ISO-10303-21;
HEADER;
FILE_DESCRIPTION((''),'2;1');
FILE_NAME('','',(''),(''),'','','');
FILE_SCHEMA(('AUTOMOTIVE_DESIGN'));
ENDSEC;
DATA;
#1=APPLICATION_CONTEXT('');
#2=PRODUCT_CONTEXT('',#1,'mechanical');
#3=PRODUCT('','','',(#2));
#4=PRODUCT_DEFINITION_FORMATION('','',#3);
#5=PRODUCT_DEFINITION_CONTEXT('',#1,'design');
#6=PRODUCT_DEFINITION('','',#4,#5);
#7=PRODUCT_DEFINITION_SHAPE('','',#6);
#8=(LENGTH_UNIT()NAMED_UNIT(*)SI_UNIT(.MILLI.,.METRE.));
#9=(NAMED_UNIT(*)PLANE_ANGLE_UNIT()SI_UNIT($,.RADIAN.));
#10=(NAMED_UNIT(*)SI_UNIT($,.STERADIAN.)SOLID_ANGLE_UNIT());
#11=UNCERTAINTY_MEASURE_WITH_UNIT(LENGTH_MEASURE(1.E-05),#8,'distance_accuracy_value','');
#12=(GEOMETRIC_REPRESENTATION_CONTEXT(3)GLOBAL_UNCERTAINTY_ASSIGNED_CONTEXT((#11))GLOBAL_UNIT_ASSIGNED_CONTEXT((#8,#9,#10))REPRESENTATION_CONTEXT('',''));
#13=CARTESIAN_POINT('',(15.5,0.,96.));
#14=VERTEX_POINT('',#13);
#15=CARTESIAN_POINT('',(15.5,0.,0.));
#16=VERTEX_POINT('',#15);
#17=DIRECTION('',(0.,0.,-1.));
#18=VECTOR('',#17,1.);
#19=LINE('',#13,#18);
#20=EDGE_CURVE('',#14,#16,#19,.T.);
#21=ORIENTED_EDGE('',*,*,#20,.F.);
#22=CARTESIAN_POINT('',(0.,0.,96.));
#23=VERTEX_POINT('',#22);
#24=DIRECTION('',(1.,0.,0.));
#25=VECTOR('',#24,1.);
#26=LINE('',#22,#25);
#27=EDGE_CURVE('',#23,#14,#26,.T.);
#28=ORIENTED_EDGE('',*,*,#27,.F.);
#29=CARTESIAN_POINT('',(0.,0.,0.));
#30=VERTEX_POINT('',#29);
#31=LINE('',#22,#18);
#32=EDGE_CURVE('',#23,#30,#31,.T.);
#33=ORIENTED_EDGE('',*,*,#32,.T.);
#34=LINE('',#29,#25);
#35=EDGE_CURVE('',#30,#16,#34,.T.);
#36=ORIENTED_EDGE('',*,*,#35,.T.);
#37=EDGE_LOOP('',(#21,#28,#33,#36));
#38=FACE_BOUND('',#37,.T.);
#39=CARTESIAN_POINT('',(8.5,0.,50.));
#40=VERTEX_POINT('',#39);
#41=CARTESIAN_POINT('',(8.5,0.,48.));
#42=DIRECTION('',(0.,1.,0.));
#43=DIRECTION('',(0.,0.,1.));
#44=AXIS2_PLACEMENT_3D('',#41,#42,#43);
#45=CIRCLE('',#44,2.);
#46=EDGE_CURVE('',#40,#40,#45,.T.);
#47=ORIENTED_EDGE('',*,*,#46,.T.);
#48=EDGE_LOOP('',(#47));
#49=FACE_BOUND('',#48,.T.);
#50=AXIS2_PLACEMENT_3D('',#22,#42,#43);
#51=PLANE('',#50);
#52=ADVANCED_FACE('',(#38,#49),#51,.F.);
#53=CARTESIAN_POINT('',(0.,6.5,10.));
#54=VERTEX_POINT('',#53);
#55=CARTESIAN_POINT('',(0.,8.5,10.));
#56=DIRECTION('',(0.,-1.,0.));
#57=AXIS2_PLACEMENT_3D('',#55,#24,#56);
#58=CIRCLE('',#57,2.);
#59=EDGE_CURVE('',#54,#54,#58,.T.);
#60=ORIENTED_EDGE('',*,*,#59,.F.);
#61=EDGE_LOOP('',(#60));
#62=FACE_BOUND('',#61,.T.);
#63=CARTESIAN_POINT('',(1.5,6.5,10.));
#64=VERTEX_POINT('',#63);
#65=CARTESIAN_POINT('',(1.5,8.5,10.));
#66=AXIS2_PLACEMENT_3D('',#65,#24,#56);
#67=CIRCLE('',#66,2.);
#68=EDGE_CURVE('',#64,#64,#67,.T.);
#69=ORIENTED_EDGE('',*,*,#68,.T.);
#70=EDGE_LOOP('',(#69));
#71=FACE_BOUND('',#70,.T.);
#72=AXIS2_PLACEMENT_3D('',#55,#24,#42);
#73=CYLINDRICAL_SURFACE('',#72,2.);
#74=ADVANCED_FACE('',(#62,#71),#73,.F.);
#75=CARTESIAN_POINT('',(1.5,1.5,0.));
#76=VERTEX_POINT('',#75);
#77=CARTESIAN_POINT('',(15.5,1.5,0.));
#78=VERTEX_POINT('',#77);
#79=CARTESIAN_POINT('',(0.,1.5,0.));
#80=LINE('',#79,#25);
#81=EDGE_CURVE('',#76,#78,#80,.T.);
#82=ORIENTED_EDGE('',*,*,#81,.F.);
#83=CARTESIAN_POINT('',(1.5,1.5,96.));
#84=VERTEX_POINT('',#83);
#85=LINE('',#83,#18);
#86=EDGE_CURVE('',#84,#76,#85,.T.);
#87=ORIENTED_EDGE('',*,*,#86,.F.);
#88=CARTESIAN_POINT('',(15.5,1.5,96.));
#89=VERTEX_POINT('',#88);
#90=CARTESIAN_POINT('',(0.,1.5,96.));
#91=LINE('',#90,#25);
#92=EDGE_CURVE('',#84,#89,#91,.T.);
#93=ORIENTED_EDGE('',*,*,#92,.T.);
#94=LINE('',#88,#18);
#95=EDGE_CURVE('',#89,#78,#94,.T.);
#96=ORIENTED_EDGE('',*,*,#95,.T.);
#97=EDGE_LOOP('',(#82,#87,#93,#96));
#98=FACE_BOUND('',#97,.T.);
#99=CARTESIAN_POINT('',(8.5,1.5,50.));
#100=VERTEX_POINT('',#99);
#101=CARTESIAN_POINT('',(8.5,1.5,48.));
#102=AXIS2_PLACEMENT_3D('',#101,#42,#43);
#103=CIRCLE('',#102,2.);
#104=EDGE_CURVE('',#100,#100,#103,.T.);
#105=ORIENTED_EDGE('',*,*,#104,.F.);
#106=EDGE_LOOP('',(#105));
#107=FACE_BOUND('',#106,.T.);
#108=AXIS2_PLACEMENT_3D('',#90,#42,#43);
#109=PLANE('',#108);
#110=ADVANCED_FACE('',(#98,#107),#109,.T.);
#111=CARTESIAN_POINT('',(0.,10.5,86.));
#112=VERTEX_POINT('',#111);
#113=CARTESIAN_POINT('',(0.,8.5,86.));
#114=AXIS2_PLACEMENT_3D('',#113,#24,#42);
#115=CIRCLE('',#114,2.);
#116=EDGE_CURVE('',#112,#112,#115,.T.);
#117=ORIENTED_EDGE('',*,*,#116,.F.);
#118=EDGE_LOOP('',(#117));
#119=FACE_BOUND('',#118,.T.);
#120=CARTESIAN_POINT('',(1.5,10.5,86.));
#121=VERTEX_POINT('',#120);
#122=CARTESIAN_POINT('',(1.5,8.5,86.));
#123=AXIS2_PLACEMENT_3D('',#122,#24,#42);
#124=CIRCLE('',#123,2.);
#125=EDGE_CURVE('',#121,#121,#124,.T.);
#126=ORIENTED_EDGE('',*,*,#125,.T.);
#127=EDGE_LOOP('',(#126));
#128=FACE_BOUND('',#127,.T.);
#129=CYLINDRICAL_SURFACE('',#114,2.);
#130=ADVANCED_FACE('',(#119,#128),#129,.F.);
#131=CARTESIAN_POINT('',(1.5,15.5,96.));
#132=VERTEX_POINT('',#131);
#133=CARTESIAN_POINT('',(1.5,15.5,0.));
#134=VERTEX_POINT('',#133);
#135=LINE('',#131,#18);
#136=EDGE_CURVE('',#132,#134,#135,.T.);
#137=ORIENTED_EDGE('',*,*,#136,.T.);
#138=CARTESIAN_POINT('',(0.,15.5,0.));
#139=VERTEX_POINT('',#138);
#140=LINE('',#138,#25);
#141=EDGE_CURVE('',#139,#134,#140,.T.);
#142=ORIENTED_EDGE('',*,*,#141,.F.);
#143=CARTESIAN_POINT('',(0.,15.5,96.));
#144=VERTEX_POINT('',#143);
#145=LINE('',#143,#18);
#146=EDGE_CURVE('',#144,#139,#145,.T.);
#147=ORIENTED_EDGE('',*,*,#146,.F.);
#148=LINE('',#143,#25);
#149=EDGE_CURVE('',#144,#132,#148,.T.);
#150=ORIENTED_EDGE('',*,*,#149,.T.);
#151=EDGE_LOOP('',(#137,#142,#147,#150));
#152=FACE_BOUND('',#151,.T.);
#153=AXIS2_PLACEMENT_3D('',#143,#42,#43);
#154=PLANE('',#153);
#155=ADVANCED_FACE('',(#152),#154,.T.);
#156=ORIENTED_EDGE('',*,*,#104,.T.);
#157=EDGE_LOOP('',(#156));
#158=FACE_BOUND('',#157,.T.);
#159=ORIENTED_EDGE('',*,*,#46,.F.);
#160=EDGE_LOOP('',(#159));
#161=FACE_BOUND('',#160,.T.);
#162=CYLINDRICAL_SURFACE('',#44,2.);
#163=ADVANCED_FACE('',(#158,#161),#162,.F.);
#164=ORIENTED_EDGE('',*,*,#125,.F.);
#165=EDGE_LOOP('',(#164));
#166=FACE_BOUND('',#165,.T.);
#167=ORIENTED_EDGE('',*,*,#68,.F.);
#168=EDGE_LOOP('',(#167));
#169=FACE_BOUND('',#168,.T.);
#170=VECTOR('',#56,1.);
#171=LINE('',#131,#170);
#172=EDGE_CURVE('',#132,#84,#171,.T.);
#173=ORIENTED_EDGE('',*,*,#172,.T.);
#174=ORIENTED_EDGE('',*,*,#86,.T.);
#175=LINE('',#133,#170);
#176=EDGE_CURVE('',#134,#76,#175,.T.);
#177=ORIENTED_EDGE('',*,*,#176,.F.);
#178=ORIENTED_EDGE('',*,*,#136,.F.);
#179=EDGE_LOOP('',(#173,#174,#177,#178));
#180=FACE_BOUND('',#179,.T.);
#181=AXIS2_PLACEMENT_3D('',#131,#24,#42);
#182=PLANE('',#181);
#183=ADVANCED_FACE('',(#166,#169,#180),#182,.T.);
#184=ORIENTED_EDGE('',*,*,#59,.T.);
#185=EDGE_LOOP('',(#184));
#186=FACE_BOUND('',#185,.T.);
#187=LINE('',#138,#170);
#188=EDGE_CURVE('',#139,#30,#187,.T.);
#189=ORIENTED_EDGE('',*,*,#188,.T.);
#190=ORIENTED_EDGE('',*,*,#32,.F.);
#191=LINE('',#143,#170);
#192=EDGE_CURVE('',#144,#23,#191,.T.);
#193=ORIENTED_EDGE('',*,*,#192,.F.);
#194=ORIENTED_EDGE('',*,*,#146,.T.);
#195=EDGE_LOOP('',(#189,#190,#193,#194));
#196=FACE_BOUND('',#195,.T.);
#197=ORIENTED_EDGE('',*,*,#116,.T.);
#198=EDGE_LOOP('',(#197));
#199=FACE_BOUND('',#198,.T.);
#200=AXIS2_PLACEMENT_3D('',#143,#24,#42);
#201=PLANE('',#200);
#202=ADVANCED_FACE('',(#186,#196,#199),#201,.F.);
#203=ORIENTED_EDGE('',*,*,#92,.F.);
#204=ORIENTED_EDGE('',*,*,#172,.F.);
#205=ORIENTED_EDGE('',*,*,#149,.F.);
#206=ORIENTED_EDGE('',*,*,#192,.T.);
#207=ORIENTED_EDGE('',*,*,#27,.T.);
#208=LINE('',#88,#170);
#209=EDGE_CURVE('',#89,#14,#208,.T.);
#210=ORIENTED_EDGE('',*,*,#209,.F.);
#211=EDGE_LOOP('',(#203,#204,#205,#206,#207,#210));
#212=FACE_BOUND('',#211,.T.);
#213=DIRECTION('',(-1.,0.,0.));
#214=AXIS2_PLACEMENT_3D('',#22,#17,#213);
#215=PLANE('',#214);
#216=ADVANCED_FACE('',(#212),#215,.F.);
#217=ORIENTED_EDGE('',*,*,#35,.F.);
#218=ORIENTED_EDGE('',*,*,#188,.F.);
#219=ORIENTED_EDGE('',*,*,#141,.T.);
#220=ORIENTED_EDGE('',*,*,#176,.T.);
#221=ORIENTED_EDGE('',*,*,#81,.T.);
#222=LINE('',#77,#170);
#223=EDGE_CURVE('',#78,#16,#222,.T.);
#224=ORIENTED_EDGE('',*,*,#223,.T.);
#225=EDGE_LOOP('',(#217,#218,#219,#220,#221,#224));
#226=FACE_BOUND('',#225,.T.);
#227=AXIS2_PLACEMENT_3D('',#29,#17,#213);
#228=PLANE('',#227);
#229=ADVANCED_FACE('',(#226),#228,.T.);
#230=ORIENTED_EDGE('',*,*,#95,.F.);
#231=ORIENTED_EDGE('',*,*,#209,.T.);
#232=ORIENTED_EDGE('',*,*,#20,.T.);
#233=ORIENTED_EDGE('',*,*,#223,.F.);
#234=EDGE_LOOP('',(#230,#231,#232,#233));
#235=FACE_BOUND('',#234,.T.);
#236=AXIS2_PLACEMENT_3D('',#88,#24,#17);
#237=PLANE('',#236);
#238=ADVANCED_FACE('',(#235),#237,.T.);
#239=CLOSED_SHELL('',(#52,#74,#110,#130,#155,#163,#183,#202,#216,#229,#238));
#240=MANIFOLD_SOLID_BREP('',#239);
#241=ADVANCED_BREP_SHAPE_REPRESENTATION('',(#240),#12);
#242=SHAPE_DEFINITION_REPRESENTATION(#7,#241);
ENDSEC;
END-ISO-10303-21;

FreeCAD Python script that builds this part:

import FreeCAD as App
import Part
import Sketcher
from FreeCAD import Vector

doc = App.newDocument("Part")
body = doc.addObject("PartDesign::Body", "Body")

sketch1 = body.newObject("Sketcher::SketchObject", "Sketch")
sketch1.AttachmentSupport = (doc.getObject("XY_Plane"), [""])
sketch1.MapMode = "FlatFace"
sketch1.addGeometry([
    Part.LineSegment(Vector(0, 15.5, 0), Vector(0, 0, 0)),
    Part.LineSegment(Vector(0, 0, 0), Vector(15.5, 0, 0)),
    Part.LineSegment(Vector(15.5, 0, 0), Vector(15.5, 1.5, 0)),
    Part.LineSegment(Vector(15.5, 1.5, 0), Vector(1.5, 1.5, 0)),
    Part.LineSegment(Vector(1.5, 1.5, 0), Vector(1.5, 15.5, 0)),
    Part.LineSegment(Vector(1.5, 15.5, 0), Vector(0, 15.5, 0)),
], False)
sketch1.addConstraint([
    Sketcher.Constraint("Coincident", 0, 2, 1, 1),
    Sketcher.Constraint("Coincident", 1, 2, 2, 1),
    Sketcher.Constraint("Coincident", 2, 2, 3, 1),
    Sketcher.Constraint("Coincident", 3, 2, 4, 1),
    Sketcher.Constraint("Coincident", 4, 2, 5, 1),
    Sketcher.Constraint("Coincident", 5, 2, 0, 1),
    Sketcher.Constraint("Vertical", 0),
    Sketcher.Constraint("Horizontal", 1),
    Sketcher.Constraint("Vertical", 2),
    Sketcher.Constraint("Horizontal", 3),
    Sketcher.Constraint("Vertical", 4),
    Sketcher.Constraint("Horizontal", 5),
    Sketcher.Constraint("Coincident", 0, 2, -1, 1),
    Sketcher.Constraint("Equal", 1, 0),
    Sketcher.Constraint("Equal", 5, 2),
    Sketcher.Constraint("DistanceX", 3, 2, 3, 1, 14.0),
    Sketcher.Constraint("DistanceX", 1, 1, 1, 2, 15.5),
])
pad1 = body.newObject("PartDesign::Pad", "Pad")
pad1.Profile = sketch1
pad1.Length = 96

sketch2 = body.newObject("Sketcher::SketchObject", "Sketch001")
sketch2.AttachmentSupport = (doc.getObject("YZ_Plane"), [""])
sketch2.MapMode = "FlatFace"
sketch2.AttachmentOffset = App.Placement(Vector(0, 0, 1.5), App.Rotation())
sketch2.addGeometry([
    Part.Circle(Vector(8.5, 86, 0), Vector(0, 0, 1), 2),
    Part.Circle(Vector(8.5, 10, 0), Vector(0, 0, 1), 2),
], False)
sketch2.addConstraint([
    Sketcher.Constraint("Equal", 0, 1),
    Sketcher.Constraint("Vertical", 0, 3, 1, 3),
    Sketcher.Constraint("Diameter", 0, 4.0),
    Sketcher.Constraint("DistanceY", -1, 1, 0, 3, 86.0),
    Sketcher.Constraint("DistanceY", -1, 1, 1, 3, 10.0),
    Sketcher.Constraint("DistanceX", -1, 1, 0, 3, 8.5),
])
pocket1 = body.newObject("PartDesign::Pocket", "Pocket")
pocket1.Profile = sketch2
pocket1.Type = "ThroughAll"

sketch3 = body.newObject("Sketcher::SketchObject", "Sketch002")
sketch3.AttachmentSupport = (doc.getObject("XZ_Plane"), [""])
sketch3.MapMode = "FlatFace"
sketch3.AttachmentOffset = App.Placement(Vector(0, 0, -1.5), App.Rotation())
sketch3.addGeometry(Part.Circle(Vector(8.5, 48, 0), Vector(0, 0, 1), 2), False)
sketch3.addConstraint([
    Sketcher.Constraint("Diameter", 0, 4.0),
    Sketcher.Constraint("DistanceY", -1, 1, 0, 3, 48.0),
    Sketcher.Constraint("DistanceX", -1, 1, 0, 3, 8.5),
])
pocket2 = body.newObject("PartDesign::Pocket", "Pocket001")
pocket2.Profile = sketch3
pocket2.Type = "ThroughAll"
pocket2.Reversed = True

doc.recompute()
